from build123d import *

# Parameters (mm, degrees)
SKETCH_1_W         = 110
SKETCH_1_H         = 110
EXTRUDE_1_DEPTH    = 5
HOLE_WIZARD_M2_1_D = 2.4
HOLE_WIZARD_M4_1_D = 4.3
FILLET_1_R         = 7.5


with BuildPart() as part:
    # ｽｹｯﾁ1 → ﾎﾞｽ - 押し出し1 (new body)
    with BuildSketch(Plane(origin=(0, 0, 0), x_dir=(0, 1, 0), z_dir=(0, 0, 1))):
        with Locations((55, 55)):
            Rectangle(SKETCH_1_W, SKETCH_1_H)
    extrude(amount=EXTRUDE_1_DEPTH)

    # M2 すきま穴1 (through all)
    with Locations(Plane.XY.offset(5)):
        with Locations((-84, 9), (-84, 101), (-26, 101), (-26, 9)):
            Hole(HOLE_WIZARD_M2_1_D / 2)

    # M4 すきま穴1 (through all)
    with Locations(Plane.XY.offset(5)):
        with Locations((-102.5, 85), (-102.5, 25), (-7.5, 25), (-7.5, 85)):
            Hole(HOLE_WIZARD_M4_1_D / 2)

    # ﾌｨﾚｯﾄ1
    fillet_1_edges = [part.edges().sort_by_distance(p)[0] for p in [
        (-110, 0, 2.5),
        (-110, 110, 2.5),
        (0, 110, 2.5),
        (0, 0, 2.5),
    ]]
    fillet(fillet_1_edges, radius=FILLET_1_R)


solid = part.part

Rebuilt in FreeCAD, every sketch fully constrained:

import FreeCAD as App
import Part
import Sketcher

V = App.Vector
Q = App.Units.Quantity


def edges_at(feature, points):
    """Names of the edges that pass closest to the given points."""
    edges = feature.Shape.Edges
    near = lambda p: min(range(len(edges)), key=lambda i: edges[i].distToShape(Part.Vertex(*p))[0])
    return sorted({f"Edge{near(p) + 1}" for p in points})


def add_polygon(sketch, points):
    """Adds a closed chain of lines whose ends are joined by coincident constraints."""
    first, n = sketch.GeometryCount, len(points)
    for a, b in zip(points, points[1:] + points[:1]):
        sketch.addGeometry(Part.LineSegment(App.Vector(*a, 0), App.Vector(*b, 0)), False)
    for i in range(n):
        sketch.addConstraint(Sketcher.Constraint("Coincident", first + i, 2, first + (i + 1) % n, 1))

doc = App.newDocument("Part")
params = doc.addObject("Spreadsheet::Sheet", "Params")
for row, (alias, value) in enumerate([
    ("sketch1_width", "110 mm"),
    ("pad1_length", "5 mm"),
    ("sketch2_diameter", "2.4 mm"),
    ("hole_diameter", "2.4 mm"),
    ("sketch3_diameter", "4.3 mm"),
    ("hole2_diameter", "4.3 mm"),
    ("fillet_radius", "7.5 mm"),
], start=1):
    params.set(f"A{row}", alias)
    params.set(f"B{row}", "=" + value)
    params.setAlias(f"B{row}", alias)

body = doc.addObject("PartDesign::Body", "Body")

# Sketch on XY plane
sketch1 = body.newObject("Sketcher::SketchObject", "Sketch")
sketch1.AttachmentSupport = (doc.getObject("XY_Plane"), [""])
sketch1.MapMode = "FlatFace"
add_polygon(sketch1, [(-110, 0), (0, 0), (0, 110), (-110, 110)])  # lines 0-3
sketch1.addConstraint(Sketcher.Constraint("Horizontal", 0))
sketch1.addConstraint(Sketcher.Constraint("Vertical", 1))
sketch1.addConstraint(Sketcher.Constraint("Horizontal", 2))
sketch1.addConstraint(Sketcher.Constraint("Vertical", 3))
sketch1.addConstraint(Sketcher.Constraint("Coincident", 0, 2, -1, 1))
sketch1.addConstraint(Sketcher.Constraint("Equal", 2, 1))
sketch1.addConstraint(Sketcher.Constraint("DistanceX", 0, 1, 0, 2, Q("110 mm")))
sketch1.setExpression("Constraints[10]", "Params.sketch1_width")
pad1 = body.newObject("PartDesign::Pad", "Pad")
pad1.Profile = sketch1
pad1.setExpression("Length", "Params.pad1_length")

# Sketch on XY plane
sketch2 = body.newObject("Sketcher::SketchObject", "Sketch001")
sketch2.AttachmentSupport = (doc.getObject("XY_Plane"), [""])
sketch2.MapMode = "FlatFace"
sketch2.AttachmentOffset = App.Placement(V(0, 0, 5), App.Rotation())
sketch2.addGeometry(Part.Circle(V(-84, 9, 0), V(0, 0, 1), 1.2), False)
sketch2.addGeometry(Part.Circle(V(-84, 101, 0), V(0, 0, 1), 1.2), False)
sketch2.addGeometry(Part.Circle(V(-26, 101, 0), V(0, 0, 1), 1.2), False)
sketch2.addGeometry(Part.Circle(V(-26, 9, 0), V(0, 0, 1), 1.2), False)
sketch2.addConstraint(Sketcher.Constraint("Equal", 0, 1))
sketch2.addConstraint(Sketcher.Constraint("Equal", 1, 2))
sketch2.addConstraint(Sketcher.Constraint("Equal", 2, 3))
sketch2.addConstraint(Sketcher.Constraint("Horizontal", 1, 3, 2, 3))
sketch2.addConstraint(Sketcher.Constraint("Horizontal", 0, 3, 3, 3))
sketch2.addConstraint(Sketcher.Constraint("Vertical", 0, 3, 1, 3))
sketch2.addConstraint(Sketcher.Constraint("Vertical", 2, 3, 3, 3))
sketch2.addConstraint(Sketcher.Constraint("Diameter", 0, Q("2.4 mm")))
sketch2.addConstraint(Sketcher.Constraint("DistanceX", 0, 3, -1, 1, Q("84 mm")))
sketch2.addConstraint(Sketcher.Constraint("DistanceY", -1, 1, 0, 3, Q("9 mm")))
sketch2.addConstraint(Sketcher.Constraint("DistanceY", -1, 1, 1, 3, Q("101 mm")))
sketch2.addConstraint(Sketcher.Constraint("DistanceX", 2, 3, -1, 1, Q("26 mm")))
sketch2.setExpression("Constraints[7]", "Params.sketch2_diameter")
doc.recompute()
hole = body.newObject("PartDesign::Hole", "Hole")
hole.Profile = sketch2
hole.ThreadType = "None"
hole.setExpression("Diameter", "Params.hole_diameter")
hole.DepthType = "ThroughAll"

# Sketch on XY plane
sketch3 = body.newObject("Sketcher::SketchObject", "Sketch002")
sketch3.AttachmentSupport = (doc.getObject("XY_Plane"), [""])
sketch3.MapMode = "FlatFace"
sketch3.AttachmentOffset = App.Placement(V(0, 0, 5), App.Rotation())
sketch3.addGeometry(Part.Circle(V(-102.5, 85, 0), V(0, 0, 1), 2.15), False)
sketch3.addGeometry(Part.Circle(V(-102.5, 25, 0), V(0, 0, 1), 2.15), False)
sketch3.addGeometry(Part.Circle(V(-7.5, 25, 0), V(0, 0, 1), 2.15), False)
sketch3.addGeometry(Part.Circle(V(-7.5, 85, 0), V(0, 0, 1), 2.15), False)
sketch3.addConstraint(Sketcher.Constraint("Equal", 0, 1))
sketch3.addConstraint(Sketcher.Constraint("Equal", 1, 2))
sketch3.addConstraint(Sketcher.Constraint("Equal", 2, 3))
sketch3.addConstraint(Sketcher.Constraint("Horizontal", 1, 3, 2, 3))
sketch3.addConstraint(Sketcher.Constraint("Horizontal", 0, 3, 3, 3))
sketch3.addConstraint(Sketcher.Constraint("Vertical", 0, 3, 1, 3))
sketch3.addConstraint(Sketcher.Constraint("Vertical", 2, 3, 3, 3))
sketch3.addConstraint(Sketcher.Constraint("Diameter", 0, Q("4.3 mm")))
sketch3.addConstraint(Sketcher.Constraint("DistanceY", -1, 1, 0, 3, Q("85 mm")))
sketch3.addConstraint(Sketcher.Constraint("DistanceY", -1, 1, 1, 3, Q("25 mm")))
sketch3.addConstraint(Sketcher.Constraint("DistanceX", 1, 3, 2, 3, Q("95 mm")))
sketch3.addConstraint(Sketcher.Constraint("DistanceX", 0, 3, -1, 1, Q("102.5 mm")))
sketch3.setExpression("Constraints[7]", "Params.sketch3_diameter")
doc.recompute()
hole2 = body.newObject("PartDesign::Hole", "Hole001")
hole2.Profile = sketch3
hole2.ThreadType = "None"
hole2.setExpression("Diameter", "Params.hole2_diameter")
hole2.DepthType = "ThroughAll"
doc.recompute()

fillet = body.newObject("PartDesign::Fillet", "Fillet")
fillet.Base = (hole2, edges_at(hole2, [
    (-110, 0, 2.5),
    (-110, 110, 2.5),
    (0, 110, 2.5),
    (0, 0, 2.5),
]))
fillet.setExpression("Radius", "Params.fillet_radius")

doc.recompute()
